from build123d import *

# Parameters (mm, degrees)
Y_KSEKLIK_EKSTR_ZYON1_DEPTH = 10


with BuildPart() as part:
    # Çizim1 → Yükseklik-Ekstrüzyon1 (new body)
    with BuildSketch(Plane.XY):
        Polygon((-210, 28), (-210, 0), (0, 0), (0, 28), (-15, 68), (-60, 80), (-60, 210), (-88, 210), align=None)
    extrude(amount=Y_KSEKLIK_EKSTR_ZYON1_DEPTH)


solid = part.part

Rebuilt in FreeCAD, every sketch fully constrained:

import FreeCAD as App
import Part
import Sketcher
from FreeCAD import Vector
Q = App.Units.Quantity


def add_polygon(sketch, points):
    """Adds a closed chain of lines whose ends are joined by coincident constraints."""
    first, n = sketch.GeometryCount, len(points)
    for a, b in zip(points, points[1:] + points[:1]):
        sketch.addGeometry(Part.LineSegment(App.Vector(*a, 0), App.Vector(*b, 0)), False)
    for i in range(n):
        sketch.addConstraint(Sketcher.Constraint("Coincident", first + i, 2, first + (i + 1) % n, 1))

doc = App.newDocument("Part")
body = doc.addObject("PartDesign::Body", "Body")

# Sketch on XY plane
sketch1 = body.newObject("Sketcher::SketchObject", "Sketch")
sketch1.AttachmentSupport = (doc.getObject("XY_Plane"), [""])
sketch1.MapMode = "FlatFace"
add_polygon(sketch1, [(-210, 28), (-210, 0), (0, 0), (0, 28), (-15, 68), (-60, 80), (-60, 210), (-88, 210)])  # lines 0-7
sketch1.addConstraint([
    Sketcher.Constraint("Vertical", 0),
    Sketcher.Constraint("Horizontal", 1),
    Sketcher.Constraint("Vertical", 2),
    Sketcher.Constraint("Vertical", 5),
    Sketcher.Constraint("Horizontal", 6),
    Sketcher.Constraint("Coincident", 1, 2, -1, 1),
    Sketcher.Constraint("Horizontal", 2, 2, 7, 2),
    Sketcher.Constraint("Equal", 6, 0),
    Sketcher.Constraint("DistanceX", 1, 1, 1, 2, Q("210 mm")),
    Sketcher.Constraint("DistanceX", 6, 2, 6, 1, Q("28 mm")),
    Sketcher.Constraint("DistanceY", 5, 1, 5, 2, Q("130 mm")),
    Sketcher.Constraint("DistanceX", 3, 2, -1, 1, Q("15 mm")),
    Sketcher.Constraint("DistanceY", -1, 1, 3, 2, Q("68 mm")),
    Sketcher.Constraint("DistanceX", 4, 2, -1, 1, Q("60 mm")),
    Sketcher.Constraint("DistanceY", -1, 1, 4, 2, Q("80 mm")),
])
pad1 = body.newObject("PartDesign::Pad", "Pad")
pad1.Profile = sketch1
pad1.Length = 10

doc.recompute()
